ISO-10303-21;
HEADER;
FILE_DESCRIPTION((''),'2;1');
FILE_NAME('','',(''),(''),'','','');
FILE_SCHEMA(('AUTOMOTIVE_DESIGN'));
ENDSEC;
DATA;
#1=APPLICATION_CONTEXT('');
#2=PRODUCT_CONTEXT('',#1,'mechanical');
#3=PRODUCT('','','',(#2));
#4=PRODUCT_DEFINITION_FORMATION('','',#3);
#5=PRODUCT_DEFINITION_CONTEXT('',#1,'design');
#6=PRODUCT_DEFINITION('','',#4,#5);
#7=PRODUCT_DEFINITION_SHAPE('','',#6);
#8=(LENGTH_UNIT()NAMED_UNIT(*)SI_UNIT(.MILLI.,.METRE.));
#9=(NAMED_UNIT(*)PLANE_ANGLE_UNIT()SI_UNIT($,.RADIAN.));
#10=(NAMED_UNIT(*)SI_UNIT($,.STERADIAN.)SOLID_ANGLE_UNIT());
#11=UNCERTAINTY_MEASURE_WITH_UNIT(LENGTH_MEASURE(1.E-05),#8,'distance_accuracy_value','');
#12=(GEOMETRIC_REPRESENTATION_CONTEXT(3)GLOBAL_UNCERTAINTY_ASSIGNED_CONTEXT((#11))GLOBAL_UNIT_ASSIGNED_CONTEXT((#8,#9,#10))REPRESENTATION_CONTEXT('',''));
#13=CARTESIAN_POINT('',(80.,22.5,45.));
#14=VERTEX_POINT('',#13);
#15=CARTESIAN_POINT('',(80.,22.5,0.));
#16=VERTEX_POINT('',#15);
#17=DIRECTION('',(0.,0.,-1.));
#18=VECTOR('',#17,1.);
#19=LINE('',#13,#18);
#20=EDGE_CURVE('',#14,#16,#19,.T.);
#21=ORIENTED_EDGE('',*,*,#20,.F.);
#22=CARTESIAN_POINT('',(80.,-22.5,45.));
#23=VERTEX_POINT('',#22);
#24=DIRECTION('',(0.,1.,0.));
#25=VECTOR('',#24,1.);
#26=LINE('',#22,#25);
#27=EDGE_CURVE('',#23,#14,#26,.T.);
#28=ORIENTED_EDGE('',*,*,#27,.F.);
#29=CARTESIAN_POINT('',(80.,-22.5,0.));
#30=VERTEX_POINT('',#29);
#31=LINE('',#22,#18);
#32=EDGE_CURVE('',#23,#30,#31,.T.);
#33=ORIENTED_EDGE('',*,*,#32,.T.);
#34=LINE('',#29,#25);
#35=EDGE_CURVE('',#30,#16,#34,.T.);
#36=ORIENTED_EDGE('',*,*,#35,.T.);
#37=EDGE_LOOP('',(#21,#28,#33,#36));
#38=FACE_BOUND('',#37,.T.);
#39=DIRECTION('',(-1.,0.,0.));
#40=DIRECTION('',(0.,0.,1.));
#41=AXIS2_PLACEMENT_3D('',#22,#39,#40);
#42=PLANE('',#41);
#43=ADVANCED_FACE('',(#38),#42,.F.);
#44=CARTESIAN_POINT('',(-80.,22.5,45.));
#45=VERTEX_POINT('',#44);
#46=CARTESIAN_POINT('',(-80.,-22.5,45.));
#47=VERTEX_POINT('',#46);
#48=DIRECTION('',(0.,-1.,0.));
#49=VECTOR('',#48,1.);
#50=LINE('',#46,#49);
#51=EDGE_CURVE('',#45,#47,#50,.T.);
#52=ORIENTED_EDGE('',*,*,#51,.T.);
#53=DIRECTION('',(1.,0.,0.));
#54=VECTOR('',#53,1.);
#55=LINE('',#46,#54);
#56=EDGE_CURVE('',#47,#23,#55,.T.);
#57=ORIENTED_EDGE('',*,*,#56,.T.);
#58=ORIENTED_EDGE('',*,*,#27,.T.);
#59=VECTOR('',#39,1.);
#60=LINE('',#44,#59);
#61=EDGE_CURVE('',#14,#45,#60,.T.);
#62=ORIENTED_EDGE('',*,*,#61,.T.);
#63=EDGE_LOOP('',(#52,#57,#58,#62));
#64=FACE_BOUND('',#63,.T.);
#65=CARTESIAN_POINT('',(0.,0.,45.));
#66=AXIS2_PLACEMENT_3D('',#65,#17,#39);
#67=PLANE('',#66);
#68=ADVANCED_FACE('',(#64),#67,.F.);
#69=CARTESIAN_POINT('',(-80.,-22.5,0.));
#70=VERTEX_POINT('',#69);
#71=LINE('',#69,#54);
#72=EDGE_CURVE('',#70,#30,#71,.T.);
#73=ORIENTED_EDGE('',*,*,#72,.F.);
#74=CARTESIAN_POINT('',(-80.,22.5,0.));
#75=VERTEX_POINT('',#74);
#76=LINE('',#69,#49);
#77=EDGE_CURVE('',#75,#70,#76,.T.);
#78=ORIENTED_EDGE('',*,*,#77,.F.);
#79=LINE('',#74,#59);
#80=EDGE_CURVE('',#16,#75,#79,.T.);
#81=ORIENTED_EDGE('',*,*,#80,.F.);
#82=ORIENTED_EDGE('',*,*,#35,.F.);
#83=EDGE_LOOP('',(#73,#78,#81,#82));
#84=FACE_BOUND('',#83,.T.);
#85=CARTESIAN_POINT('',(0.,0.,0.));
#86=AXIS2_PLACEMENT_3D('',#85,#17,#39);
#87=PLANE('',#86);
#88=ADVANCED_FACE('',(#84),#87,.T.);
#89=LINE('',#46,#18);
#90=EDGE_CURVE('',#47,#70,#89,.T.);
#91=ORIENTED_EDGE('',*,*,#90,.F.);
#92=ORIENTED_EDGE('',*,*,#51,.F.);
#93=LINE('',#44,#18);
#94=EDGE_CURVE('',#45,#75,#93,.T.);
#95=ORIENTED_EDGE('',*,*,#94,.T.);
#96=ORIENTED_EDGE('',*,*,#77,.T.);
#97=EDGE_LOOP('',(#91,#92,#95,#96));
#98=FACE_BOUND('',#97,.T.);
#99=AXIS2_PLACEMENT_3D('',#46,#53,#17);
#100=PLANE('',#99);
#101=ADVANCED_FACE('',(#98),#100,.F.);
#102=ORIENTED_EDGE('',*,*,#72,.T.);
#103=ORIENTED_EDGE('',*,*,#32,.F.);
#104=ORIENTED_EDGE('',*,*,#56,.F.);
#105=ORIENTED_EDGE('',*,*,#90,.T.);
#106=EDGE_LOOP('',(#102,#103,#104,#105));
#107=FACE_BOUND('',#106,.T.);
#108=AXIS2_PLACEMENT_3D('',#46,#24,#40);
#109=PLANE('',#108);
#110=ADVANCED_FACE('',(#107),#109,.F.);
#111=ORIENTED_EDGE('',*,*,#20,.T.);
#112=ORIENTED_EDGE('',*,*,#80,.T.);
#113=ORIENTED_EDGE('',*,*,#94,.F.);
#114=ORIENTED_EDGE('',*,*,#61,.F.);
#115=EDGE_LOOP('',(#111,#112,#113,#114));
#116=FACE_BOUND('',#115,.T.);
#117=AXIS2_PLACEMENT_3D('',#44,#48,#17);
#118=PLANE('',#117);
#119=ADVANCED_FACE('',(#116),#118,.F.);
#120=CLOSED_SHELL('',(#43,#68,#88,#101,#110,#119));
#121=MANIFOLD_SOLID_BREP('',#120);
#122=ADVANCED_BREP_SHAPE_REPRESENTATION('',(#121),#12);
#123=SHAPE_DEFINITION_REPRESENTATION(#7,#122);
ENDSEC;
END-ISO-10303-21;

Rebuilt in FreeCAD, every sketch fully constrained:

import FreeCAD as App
import Part
import Sketcher
from FreeCAD import Vector
Q = App.Units.Quantity

doc = App.newDocument("Part")
params = doc.addObject("Spreadsheet::Sheet", "Params")
for row, (alias, value) in enumerate([
    ("sketch1_width", "160 mm"),
    ("sketch1_height", "45 mm"),
    ("pad1_length", "45 mm"),
], start=1):
    params.set(f"A{row}", alias)
    params.set(f"B{row}", "=" + value)
    params.setAlias(f"B{row}", alias)

body = doc.addObject("PartDesign::Body", "Body")

# Sketch on XY plane
sketch1 = body.newObject("Sketcher::SketchObject", "Sketch")
sketch1.AttachmentSupport = (doc.getObject("XY_Plane"), [""])
sketch1.MapMode = "FlatFace"
sketch1.addGeometry([
    Part.LineSegment(Vector(-80, 22, 0), Vector(-80, -22, 0)),
    Part.LineSegment(Vector(-80, -22, 0), Vector(80, -22, 0)),
    Part.LineSegment(Vector(80, -22, 0), Vector(80, 22, 0)),
    Part.LineSegment(Vector(80, 22, 0), Vector(-80, 22, 0)),
], False)
sketch1.addConstraint([
    Sketcher.Constraint("Coincident", 0, 2, 1, 1),
    Sketcher.Constraint("Coincident", 1, 2, 2, 1),
    Sketcher.Constraint("Coincident", 2, 2, 3, 1),
    Sketcher.Constraint("Coincident", 3, 2, 0, 1),
    Sketcher.Constraint("Vertical", 0),
    Sketcher.Constraint("Horizontal", 1),
    Sketcher.Constraint("Vertical", 2),
    Sketcher.Constraint("Horizontal", 3),
    Sketcher.Constraint("Symmetric", 0, 2, 2, 2, -1, 1),
    Sketcher.Constraint("DistanceX", 1, 1, 1, 2, Q("160 mm")),
    Sketcher.Constraint("DistanceY", 0, 2, 0, 1, Q("45 mm")),
])
sketch1.setExpression("Constraints[9]", "Params.sketch1_width")
sketch1.setExpression("Constraints[10]", "Params.sketch1_height")
pad1 = body.newObject("PartDesign::Pad", "Pad")
pad1.Profile = sketch1
pad1.setExpression("Length", "Params.pad1_length")

doc.recompute()
